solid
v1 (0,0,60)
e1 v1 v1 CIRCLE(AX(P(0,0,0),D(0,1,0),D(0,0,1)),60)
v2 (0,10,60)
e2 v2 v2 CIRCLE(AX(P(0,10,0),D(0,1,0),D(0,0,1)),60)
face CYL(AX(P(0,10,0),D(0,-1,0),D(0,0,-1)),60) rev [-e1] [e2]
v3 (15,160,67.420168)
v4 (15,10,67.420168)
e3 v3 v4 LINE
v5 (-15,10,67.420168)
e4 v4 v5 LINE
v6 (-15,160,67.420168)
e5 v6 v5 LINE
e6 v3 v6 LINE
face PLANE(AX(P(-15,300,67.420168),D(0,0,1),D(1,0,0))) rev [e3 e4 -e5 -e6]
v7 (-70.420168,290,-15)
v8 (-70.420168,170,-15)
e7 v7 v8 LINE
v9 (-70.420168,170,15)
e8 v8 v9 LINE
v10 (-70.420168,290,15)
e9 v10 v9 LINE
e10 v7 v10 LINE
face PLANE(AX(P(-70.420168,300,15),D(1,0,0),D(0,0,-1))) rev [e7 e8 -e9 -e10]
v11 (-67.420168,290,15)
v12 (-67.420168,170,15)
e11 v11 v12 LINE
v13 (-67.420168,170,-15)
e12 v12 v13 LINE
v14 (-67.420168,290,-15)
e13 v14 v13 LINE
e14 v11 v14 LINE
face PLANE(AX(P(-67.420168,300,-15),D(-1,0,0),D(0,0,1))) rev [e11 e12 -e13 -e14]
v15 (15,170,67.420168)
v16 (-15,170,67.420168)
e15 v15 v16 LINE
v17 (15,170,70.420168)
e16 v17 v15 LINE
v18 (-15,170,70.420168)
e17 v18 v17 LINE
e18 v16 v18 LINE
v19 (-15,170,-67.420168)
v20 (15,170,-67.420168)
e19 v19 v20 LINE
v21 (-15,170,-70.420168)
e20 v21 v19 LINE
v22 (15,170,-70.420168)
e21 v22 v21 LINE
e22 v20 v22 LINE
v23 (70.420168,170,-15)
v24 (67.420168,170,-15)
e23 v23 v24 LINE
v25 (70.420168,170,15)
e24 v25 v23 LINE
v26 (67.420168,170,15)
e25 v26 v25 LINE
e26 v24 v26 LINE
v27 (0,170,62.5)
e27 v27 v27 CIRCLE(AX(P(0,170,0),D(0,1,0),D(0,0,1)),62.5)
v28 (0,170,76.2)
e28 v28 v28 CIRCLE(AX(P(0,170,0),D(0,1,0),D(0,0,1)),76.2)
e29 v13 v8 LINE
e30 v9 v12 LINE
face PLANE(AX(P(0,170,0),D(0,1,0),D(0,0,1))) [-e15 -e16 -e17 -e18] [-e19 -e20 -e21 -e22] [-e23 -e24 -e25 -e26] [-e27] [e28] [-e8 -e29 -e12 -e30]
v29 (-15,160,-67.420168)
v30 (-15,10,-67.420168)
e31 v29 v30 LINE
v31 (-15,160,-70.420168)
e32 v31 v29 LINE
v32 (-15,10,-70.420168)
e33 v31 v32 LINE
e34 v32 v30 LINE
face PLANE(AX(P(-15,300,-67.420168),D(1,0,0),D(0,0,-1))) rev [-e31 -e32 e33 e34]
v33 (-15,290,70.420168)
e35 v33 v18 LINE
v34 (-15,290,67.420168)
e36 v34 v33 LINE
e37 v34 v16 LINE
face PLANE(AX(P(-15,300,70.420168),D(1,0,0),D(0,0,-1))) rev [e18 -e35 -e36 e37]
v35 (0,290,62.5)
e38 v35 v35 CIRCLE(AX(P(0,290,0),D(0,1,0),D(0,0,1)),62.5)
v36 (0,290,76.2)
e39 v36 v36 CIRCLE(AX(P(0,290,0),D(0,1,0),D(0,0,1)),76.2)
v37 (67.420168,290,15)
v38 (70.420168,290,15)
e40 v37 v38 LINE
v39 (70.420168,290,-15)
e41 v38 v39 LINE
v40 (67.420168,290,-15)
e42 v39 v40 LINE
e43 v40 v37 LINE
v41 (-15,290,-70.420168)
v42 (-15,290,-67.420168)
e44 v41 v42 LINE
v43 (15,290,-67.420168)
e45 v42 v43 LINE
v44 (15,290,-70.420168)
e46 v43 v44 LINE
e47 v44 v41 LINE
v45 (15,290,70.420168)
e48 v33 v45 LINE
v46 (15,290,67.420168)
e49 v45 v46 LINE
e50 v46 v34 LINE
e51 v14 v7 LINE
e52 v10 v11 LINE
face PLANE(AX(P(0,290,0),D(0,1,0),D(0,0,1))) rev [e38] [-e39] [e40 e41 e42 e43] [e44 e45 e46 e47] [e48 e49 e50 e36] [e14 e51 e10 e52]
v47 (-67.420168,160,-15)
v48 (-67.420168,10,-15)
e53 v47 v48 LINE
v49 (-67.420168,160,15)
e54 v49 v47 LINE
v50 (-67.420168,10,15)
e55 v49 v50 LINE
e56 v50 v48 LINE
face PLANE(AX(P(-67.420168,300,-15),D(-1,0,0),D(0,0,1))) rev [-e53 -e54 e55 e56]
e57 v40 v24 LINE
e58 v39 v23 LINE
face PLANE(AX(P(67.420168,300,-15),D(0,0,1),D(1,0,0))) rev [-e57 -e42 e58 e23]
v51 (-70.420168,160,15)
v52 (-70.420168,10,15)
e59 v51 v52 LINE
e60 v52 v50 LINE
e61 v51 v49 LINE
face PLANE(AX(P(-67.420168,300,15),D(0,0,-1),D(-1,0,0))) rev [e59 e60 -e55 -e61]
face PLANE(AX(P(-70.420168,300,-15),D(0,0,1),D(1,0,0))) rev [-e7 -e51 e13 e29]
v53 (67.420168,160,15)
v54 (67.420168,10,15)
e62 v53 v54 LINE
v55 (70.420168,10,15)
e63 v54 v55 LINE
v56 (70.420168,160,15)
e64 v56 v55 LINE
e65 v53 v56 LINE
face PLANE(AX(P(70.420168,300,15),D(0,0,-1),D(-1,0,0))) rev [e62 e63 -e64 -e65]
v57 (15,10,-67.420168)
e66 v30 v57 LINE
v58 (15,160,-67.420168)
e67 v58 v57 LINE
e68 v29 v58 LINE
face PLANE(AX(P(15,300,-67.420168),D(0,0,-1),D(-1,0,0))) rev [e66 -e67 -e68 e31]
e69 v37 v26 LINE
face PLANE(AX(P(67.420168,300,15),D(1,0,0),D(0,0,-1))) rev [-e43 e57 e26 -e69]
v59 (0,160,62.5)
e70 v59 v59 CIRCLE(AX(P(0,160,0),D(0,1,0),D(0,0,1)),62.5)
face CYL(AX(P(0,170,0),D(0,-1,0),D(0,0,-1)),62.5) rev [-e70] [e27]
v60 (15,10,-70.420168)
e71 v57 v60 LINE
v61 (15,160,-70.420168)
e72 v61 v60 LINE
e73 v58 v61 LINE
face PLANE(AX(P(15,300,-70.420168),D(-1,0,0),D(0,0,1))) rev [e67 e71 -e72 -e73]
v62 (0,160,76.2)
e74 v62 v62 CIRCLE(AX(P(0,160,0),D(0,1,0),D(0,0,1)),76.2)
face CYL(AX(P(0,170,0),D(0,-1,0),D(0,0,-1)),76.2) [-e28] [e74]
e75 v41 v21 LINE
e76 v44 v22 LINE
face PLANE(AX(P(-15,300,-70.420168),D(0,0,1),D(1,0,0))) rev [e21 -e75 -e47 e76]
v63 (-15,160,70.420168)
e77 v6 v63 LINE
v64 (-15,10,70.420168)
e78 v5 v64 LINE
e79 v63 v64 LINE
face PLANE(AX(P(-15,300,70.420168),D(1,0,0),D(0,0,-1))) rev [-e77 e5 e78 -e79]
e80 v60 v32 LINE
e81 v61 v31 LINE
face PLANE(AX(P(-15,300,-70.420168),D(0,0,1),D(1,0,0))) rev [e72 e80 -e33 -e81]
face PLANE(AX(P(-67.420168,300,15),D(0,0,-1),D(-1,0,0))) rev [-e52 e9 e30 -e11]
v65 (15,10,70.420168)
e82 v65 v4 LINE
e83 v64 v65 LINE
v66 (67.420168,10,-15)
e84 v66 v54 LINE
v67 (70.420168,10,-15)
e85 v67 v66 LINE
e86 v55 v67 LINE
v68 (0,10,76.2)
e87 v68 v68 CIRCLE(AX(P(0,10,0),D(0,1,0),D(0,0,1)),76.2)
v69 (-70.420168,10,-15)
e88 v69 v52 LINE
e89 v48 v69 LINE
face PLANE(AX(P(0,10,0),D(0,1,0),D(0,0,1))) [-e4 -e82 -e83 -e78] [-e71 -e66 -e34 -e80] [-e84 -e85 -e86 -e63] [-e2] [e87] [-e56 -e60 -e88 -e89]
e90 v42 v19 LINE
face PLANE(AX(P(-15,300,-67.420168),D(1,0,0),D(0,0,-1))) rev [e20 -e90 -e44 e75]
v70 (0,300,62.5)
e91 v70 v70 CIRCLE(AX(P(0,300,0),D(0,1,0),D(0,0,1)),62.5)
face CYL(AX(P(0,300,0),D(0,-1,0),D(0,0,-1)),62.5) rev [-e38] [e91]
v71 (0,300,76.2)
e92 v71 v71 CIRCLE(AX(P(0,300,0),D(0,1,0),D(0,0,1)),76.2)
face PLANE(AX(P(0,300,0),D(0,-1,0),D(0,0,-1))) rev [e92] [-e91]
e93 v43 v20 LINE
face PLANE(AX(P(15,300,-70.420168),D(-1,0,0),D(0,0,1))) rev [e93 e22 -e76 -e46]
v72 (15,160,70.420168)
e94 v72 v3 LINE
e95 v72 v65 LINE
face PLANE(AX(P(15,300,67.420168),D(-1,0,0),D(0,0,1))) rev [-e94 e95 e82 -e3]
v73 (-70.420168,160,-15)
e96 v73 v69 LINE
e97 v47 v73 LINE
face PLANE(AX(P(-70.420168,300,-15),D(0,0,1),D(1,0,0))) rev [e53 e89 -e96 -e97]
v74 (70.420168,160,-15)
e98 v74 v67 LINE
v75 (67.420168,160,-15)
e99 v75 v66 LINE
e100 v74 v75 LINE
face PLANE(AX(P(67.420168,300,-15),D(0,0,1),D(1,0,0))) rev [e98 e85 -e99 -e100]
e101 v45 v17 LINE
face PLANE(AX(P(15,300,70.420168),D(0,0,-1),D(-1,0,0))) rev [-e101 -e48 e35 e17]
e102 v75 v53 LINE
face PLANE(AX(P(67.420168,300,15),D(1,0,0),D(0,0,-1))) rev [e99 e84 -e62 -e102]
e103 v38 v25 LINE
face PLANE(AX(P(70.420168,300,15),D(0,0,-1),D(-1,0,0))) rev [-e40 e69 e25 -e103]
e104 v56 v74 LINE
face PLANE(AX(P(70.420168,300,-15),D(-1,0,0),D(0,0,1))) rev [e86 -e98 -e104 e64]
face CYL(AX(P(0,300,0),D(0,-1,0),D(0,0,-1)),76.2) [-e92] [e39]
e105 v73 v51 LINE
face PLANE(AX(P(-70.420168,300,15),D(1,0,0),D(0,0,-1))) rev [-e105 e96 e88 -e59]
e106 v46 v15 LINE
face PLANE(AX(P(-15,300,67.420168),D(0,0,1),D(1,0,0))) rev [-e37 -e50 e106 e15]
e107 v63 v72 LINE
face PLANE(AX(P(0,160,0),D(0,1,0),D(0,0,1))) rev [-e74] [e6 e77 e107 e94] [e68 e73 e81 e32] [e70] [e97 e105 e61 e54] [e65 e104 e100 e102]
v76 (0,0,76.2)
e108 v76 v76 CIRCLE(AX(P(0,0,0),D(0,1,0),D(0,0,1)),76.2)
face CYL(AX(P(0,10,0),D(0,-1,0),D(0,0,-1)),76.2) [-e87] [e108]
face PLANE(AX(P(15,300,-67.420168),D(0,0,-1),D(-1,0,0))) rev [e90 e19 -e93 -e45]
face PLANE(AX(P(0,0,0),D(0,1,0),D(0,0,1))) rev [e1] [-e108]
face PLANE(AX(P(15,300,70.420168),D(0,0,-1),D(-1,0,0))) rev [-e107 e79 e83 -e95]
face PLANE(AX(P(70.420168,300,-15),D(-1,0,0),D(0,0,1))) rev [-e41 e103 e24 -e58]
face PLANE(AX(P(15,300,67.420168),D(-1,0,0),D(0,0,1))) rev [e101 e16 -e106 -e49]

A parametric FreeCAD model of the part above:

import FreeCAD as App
import Part
import Sketcher
Q = App.Units.Quantity

doc = App.newDocument("Part")
params = doc.addObject("Spreadsheet::Sheet", "Params")
for row, (alias, value) in enumerate([
    ("sketch1_diameter", "120 mm"),
    ("sketch1_diameter2", "152.4 mm"),
    ("pad1_length", "10 mm"),
    ("sketch2_width", "30 mm"),
    ("sketch2_height", "3 mm"),
    ("pad2_length", "290 mm"),
    ("sketch3_diameter", "125 mm"),
    ("sketch3_diameter2", "152.4 mm"),
    ("pad3_length", "10 mm"),
    ("linearpattern_pitch", "130 mm"),
], start=1):
    params.set(f"A{row}", alias)
    params.set(f"B{row}", "=" + value)
    params.setAlias(f"B{row}", alias)

body = doc.addObject("PartDesign::Body", "Body")

sketch1 = body.newObject("Sketcher::SketchObject", "Sketch")
sketch1.AttachmentSupport = (doc.getObject("XZ_Plane"), [""])
sketch1.MapMode = "FlatFace"
sketch1.addGeometry([
    Part.Circle(App.Vector(0, 0, 0), App.Vector(0, 0, 1), 76),
    Part.Circle(App.Vector(0, 0, 0), App.Vector(0, 0, 1), 60),
], False)
sketch1.addConstraint([
    Sketcher.Constraint("Coincident", 0, 3, -1, 1),
    Sketcher.Constraint("Coincident", 1, 3, -1, 1),
    Sketcher.Constraint("Diameter", 1, Q("120 mm")),
    Sketcher.Constraint("Diameter", 0, Q("152.4 mm")),
])
sketch1.setExpression("Constraints[2]", "Params.sketch1_diameter")
sketch1.setExpression("Constraints[3]", "Params.sketch1_diameter2")
pad1 = body.newObject("PartDesign::Pad", "Pad")
pad1.Profile = sketch1
pad1.setExpression("Length", "Params.pad1_length")
pad1.Reversed = True

sketch2 = body.newObject("Sketcher::SketchObject", "Sketch001")
sketch2.AttachmentSupport = (doc.getObject("XZ_Plane"), [""])
sketch2.MapMode = "FlatFace"
sketch2.AttachmentOffset = App.Placement(App.Vector(0, 0, -10), App.Rotation())
sketch2.addGeometry([
    Part.LineSegment(App.Vector(-15, -70.4, 0), App.Vector(-15, -67.4, 0)),
    Part.LineSegment(App.Vector(-15, -67.4, 0), App.Vector(15, -67.4, 0)),
    Part.LineSegment(App.Vector(15, -67.4, 0), App.Vector(15, -70.4, 0)),
    Part.LineSegment(App.Vector(15, -70.4, 0), App.Vector(-15, -70.4, 0)),
], False)
sketch2.addConstraint([
    Sketcher.Constraint("Coincident", 0, 2, 1, 1),
    Sketcher.Constraint("Coincident", 1, 2, 2, 1),
    Sketcher.Constraint("Coincident", 2, 2, 3, 1),
    Sketcher.Constraint("Coincident", 3, 2, 0, 1),
    Sketcher.Constraint("Vertical", 0),
    Sketcher.Constraint("Horizontal", 1),
    Sketcher.Constraint("Vertical", 2),
    Sketcher.Constraint("Horizontal", 3),
    Sketcher.Constraint("DistanceX", 1, 1, 1, 2, Q("30 mm")),
    Sketcher.Constraint("DistanceY", 0, 1, 0, 2, Q("3 mm")),
    Sketcher.Constraint("DistanceX", 0, 2, -1, 1, Q("15 mm")),
    Sketcher.Constraint("DistanceY", 0, 2, -1, 1, Q("67.420168 mm")),
])
sketch2.setExpression("Constraints[8]", "Params.sketch2_width")
sketch2.setExpression("Constraints[9]", "Params.sketch2_height")
pad2 = body.newObject("PartDesign::Pad", "Pad001")
pad2.Profile = sketch2
pad2.setExpression("Length", "Params.pad2_length")
pad2.Reversed = True
doc.recompute()

polarpattern = body.newObject("PartDesign::PolarPattern", "PolarPattern")
polarpattern.Originals = [pad2]
polarpattern.Axis = (doc.getObject("Y_Axis"), [""])
polarpattern.Angle = 360
polarpattern.Occurrences = 4
body.Tip = polarpattern

sketch3 = body.newObject("Sketcher::SketchObject", "Sketch002")
sketch3.AttachmentSupport = (doc.getObject("XZ_Plane"), [""])
sketch3.MapMode = "FlatFace"
sketch3.AttachmentOffset = App.Placement(App.Vector(0, 0, -160), App.Rotation())
sketch3.addGeometry([
    Part.Circle(App.Vector(0, 0, 0), App.Vector(0, 0, 1), 76),
    Part.Circle(App.Vector(0, 0, 0), App.Vector(0, 0, 1), 62),
], False)
sketch3.addConstraint([
    Sketcher.Constraint("Coincident", 0, 3, -1, 1),
    Sketcher.Constraint("Coincident", 1, 3, -1, 1),
    Sketcher.Constraint("Diameter", 1, Q("125 mm")),
    Sketcher.Constraint("Diameter", 0, Q("152.4 mm")),
])
sketch3.setExpression("Constraints[2]", "Params.sketch3_diameter")
sketch3.setExpression("Constraints[3]", "Params.sketch3_diameter2")
pad3 = body.newObject("PartDesign::Pad", "Pad002")
pad3.Profile = sketch3
pad3.setExpression("Length", "Params.pad3_length")
pad3.Reversed = True
doc.recompute()

linearpattern = body.newObject("PartDesign::LinearPattern", "LinearPattern")
linearpattern.Originals = [pad3]
linearpattern.Direction = (doc.getObject("Y_Axis"), [""])
linearpattern.Mode = "offset"
linearpattern.setExpression("Offset", "Params.linearpattern_pitch")
linearpattern.Occurrences = 2
body.Tip = linearpattern

doc.recompute()
